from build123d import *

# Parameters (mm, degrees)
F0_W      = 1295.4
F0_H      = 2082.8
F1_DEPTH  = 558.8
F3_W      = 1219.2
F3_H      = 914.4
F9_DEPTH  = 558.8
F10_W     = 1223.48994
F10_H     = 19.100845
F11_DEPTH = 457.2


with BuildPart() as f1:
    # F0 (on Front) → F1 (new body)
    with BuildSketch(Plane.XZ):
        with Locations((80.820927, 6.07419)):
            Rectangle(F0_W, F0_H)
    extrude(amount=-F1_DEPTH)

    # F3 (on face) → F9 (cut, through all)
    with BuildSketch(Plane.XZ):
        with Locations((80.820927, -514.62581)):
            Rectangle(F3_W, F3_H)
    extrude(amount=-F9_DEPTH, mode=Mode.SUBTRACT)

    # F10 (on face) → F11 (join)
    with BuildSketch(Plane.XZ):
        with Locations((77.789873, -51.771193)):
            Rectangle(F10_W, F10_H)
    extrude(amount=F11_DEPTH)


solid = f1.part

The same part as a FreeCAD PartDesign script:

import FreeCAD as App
import Part
import Sketcher
from FreeCAD import Vector
Q = App.Units.Quantity

doc = App.newDocument("Part")
body = doc.addObject("PartDesign::Body", "Body")

sketch1 = body.newObject("Sketcher::SketchObject", "Sketch")
sketch1.AttachmentSupport = (doc.getObject("XZ_Plane"), [""])
sketch1.MapMode = "FlatFace"
sketch1.addGeometry(Part.LineSegment(Vector(-566.879073, 1047.47419, 0), Vector(-566.879073, -1035.32581, 0)), False)
sketch1.addGeometry(Part.LineSegment(Vector(-566.879073, -1035.32581, 0), Vector(728.520927, -1035.32581, 0)), False)
sketch1.addGeometry(Part.LineSegment(Vector(728.520927, -1035.32581, 0), Vector(728.520927, 1047.47419, 0)), False)
sketch1.addGeometry(Part.LineSegment(Vector(728.520927, 1047.47419, 0), Vector(-566.879073, 1047.47419, 0)), False)
sketch1.addConstraint(Sketcher.Constraint("Coincident", 0, 2, 1, 1))
sketch1.addConstraint(Sketcher.Constraint("Coincident", 1, 2, 2, 1))
sketch1.addConstraint(Sketcher.Constraint("Coincident", 2, 2, 3, 1))
sketch1.addConstraint(Sketcher.Constraint("Coincident", 3, 2, 0, 1))
sketch1.addConstraint(Sketcher.Constraint("Vertical", 0))
sketch1.addConstraint(Sketcher.Constraint("Horizontal", 1))
sketch1.addConstraint(Sketcher.Constraint("Vertical", 2))
sketch1.addConstraint(Sketcher.Constraint("Horizontal", 3))
sketch1.addConstraint(Sketcher.Constraint("DistanceX", 1, 1, 1, 2, Q("51 in")))
sketch1.addConstraint(Sketcher.Constraint("DistanceY", 0, 2, 0, 1, Q("82 in")))
sketch1.addConstraint(Sketcher.Constraint("DistanceY", 0, 2, -1, 1, Q("1035.32581 mm")))
sketch1.addConstraint(Sketcher.Constraint("DistanceX", 0, 2, -1, 1, Q("566.879073 mm")))
pad1 = body.newObject("PartDesign::Pad", "Pad")
pad1.Profile = sketch1
pad1.Length = Q("22 in")
pad1.Reversed = True

sketch2 = body.newObject("Sketcher::SketchObject", "Sketch001")
sketch2.AttachmentSupport = (doc.getObject("XZ_Plane"), [""])
sketch2.MapMode = "FlatFace"
sketch2.addGeometry(Part.LineSegment(Vector(-528.779073, -57.42581, 0), Vector(-528.779073, -971.82581, 0)), False)
sketch2.addGeometry(Part.LineSegment(Vector(-528.779073, -971.82581, 0), Vector(690.420927, -971.82581, 0)), False)
sketch2.addGeometry(Part.LineSegment(Vector(690.420927, -971.82581, 0), Vector(690.420927, -57.42581, 0)), False)
sketch2.addGeometry(Part.LineSegment(Vector(690.420927, -57.42581, 0), Vector(-528.779073, -57.42581, 0)), False)
sketch2.addConstraint(Sketcher.Constraint("Coincident", 0, 2, 1, 1))
sketch2.addConstraint(Sketcher.Constraint("Coincident", 1, 2, 2, 1))
sketch2.addConstraint(Sketcher.Constraint("Coincident", 2, 2, 3, 1))
sketch2.addConstraint(Sketcher.Constraint("Coincident", 3, 2, 0, 1))
sketch2.addConstraint(Sketcher.Constraint("Vertical", 0))
sketch2.addConstraint(Sketcher.Constraint("Horizontal", 1))
sketch2.addConstraint(Sketcher.Constraint("Vertical", 2))
sketch2.addConstraint(Sketcher.Constraint("Horizontal", 3))
sketch2.addConstraint(Sketcher.Constraint("DistanceX", 1, 1, 1, 2, Q("48 in")))
sketch2.addConstraint(Sketcher.Constraint("DistanceY", 0, 2, 0, 1, Q("36 in")))
sketch2.addConstraint(Sketcher.Constraint("DistanceY", 0, 2, -1, 1, Q("971.82581 mm")))
sketch2.addConstraint(Sketcher.Constraint("DistanceX", 0, 2, -1, 1, Q("528.779073 mm")))
pocket1 = body.newObject("PartDesign::Pocket", "Pocket")
pocket1.Profile = sketch2
pocket1.Type = "ThroughAll"

sketch3 = body.newObject("Sketcher::SketchObject", "Sketch002")
sketch3.AttachmentSupport = (doc.getObject("XZ_Plane"), [""])
sketch3.MapMode = "FlatFace"
sketch3.addGeometry(Part.LineSegment(Vector(-533.955097, -42.220771, 0), Vector(-533.955097, -61.321616, 0)), False)
sketch3.addGeometry(Part.LineSegment(Vector(-533.955097, -61.321616, 0), Vector(689.534843, -61.321616, 0)), False)
sketch3.addGeometry(Part.LineSegment(Vector(689.534843, -61.321616, 0), Vector(689.534843, -42.220771, 0)), False)
sketch3.addGeometry(Part.LineSegment(Vector(689.534843, -42.220771, 0), Vector(-533.955097, -42.220771, 0)), False)
sketch3.addConstraint(Sketcher.Constraint("Coincident", 0, 2, 1, 1))
sketch3.addConstraint(Sketcher.Constraint("Coincident", 1, 2, 2, 1))
sketch3.addConstraint(Sketcher.Constraint("Coincident", 2, 2, 3, 1))
sketch3.addConstraint(Sketcher.Constraint("Coincident", 3, 2, 0, 1))
sketch3.addConstraint(Sketcher.Constraint("Vertical", 0))
sketch3.addConstraint(Sketcher.Constraint("Horizontal", 1))
sketch3.addConstraint(Sketcher.Constraint("Vertical", 2))
sketch3.addConstraint(Sketcher.Constraint("Horizontal", 3))
sketch3.addConstraint(Sketcher.Constraint("DistanceX", 1, 1, 1, 2, Q("1223.48994 mm")))
sketch3.addConstraint(Sketcher.Constraint("DistanceY", 0, 2, 0, 1, Q("19.100845 mm")))
sketch3.addConstraint(Sketcher.Constraint("DistanceY", 2, 2, -1, 1, Q("42.220771 mm")))
sketch3.addConstraint(Sketcher.Constraint("DistanceX", 0, 2, -1, 1, Q("533.955097 mm")))
pad2 = body.newObject("PartDesign::Pad", "Pad001")
pad2.Profile = sketch3
pad2.Length = Q("18 in")

doc.recompute()
